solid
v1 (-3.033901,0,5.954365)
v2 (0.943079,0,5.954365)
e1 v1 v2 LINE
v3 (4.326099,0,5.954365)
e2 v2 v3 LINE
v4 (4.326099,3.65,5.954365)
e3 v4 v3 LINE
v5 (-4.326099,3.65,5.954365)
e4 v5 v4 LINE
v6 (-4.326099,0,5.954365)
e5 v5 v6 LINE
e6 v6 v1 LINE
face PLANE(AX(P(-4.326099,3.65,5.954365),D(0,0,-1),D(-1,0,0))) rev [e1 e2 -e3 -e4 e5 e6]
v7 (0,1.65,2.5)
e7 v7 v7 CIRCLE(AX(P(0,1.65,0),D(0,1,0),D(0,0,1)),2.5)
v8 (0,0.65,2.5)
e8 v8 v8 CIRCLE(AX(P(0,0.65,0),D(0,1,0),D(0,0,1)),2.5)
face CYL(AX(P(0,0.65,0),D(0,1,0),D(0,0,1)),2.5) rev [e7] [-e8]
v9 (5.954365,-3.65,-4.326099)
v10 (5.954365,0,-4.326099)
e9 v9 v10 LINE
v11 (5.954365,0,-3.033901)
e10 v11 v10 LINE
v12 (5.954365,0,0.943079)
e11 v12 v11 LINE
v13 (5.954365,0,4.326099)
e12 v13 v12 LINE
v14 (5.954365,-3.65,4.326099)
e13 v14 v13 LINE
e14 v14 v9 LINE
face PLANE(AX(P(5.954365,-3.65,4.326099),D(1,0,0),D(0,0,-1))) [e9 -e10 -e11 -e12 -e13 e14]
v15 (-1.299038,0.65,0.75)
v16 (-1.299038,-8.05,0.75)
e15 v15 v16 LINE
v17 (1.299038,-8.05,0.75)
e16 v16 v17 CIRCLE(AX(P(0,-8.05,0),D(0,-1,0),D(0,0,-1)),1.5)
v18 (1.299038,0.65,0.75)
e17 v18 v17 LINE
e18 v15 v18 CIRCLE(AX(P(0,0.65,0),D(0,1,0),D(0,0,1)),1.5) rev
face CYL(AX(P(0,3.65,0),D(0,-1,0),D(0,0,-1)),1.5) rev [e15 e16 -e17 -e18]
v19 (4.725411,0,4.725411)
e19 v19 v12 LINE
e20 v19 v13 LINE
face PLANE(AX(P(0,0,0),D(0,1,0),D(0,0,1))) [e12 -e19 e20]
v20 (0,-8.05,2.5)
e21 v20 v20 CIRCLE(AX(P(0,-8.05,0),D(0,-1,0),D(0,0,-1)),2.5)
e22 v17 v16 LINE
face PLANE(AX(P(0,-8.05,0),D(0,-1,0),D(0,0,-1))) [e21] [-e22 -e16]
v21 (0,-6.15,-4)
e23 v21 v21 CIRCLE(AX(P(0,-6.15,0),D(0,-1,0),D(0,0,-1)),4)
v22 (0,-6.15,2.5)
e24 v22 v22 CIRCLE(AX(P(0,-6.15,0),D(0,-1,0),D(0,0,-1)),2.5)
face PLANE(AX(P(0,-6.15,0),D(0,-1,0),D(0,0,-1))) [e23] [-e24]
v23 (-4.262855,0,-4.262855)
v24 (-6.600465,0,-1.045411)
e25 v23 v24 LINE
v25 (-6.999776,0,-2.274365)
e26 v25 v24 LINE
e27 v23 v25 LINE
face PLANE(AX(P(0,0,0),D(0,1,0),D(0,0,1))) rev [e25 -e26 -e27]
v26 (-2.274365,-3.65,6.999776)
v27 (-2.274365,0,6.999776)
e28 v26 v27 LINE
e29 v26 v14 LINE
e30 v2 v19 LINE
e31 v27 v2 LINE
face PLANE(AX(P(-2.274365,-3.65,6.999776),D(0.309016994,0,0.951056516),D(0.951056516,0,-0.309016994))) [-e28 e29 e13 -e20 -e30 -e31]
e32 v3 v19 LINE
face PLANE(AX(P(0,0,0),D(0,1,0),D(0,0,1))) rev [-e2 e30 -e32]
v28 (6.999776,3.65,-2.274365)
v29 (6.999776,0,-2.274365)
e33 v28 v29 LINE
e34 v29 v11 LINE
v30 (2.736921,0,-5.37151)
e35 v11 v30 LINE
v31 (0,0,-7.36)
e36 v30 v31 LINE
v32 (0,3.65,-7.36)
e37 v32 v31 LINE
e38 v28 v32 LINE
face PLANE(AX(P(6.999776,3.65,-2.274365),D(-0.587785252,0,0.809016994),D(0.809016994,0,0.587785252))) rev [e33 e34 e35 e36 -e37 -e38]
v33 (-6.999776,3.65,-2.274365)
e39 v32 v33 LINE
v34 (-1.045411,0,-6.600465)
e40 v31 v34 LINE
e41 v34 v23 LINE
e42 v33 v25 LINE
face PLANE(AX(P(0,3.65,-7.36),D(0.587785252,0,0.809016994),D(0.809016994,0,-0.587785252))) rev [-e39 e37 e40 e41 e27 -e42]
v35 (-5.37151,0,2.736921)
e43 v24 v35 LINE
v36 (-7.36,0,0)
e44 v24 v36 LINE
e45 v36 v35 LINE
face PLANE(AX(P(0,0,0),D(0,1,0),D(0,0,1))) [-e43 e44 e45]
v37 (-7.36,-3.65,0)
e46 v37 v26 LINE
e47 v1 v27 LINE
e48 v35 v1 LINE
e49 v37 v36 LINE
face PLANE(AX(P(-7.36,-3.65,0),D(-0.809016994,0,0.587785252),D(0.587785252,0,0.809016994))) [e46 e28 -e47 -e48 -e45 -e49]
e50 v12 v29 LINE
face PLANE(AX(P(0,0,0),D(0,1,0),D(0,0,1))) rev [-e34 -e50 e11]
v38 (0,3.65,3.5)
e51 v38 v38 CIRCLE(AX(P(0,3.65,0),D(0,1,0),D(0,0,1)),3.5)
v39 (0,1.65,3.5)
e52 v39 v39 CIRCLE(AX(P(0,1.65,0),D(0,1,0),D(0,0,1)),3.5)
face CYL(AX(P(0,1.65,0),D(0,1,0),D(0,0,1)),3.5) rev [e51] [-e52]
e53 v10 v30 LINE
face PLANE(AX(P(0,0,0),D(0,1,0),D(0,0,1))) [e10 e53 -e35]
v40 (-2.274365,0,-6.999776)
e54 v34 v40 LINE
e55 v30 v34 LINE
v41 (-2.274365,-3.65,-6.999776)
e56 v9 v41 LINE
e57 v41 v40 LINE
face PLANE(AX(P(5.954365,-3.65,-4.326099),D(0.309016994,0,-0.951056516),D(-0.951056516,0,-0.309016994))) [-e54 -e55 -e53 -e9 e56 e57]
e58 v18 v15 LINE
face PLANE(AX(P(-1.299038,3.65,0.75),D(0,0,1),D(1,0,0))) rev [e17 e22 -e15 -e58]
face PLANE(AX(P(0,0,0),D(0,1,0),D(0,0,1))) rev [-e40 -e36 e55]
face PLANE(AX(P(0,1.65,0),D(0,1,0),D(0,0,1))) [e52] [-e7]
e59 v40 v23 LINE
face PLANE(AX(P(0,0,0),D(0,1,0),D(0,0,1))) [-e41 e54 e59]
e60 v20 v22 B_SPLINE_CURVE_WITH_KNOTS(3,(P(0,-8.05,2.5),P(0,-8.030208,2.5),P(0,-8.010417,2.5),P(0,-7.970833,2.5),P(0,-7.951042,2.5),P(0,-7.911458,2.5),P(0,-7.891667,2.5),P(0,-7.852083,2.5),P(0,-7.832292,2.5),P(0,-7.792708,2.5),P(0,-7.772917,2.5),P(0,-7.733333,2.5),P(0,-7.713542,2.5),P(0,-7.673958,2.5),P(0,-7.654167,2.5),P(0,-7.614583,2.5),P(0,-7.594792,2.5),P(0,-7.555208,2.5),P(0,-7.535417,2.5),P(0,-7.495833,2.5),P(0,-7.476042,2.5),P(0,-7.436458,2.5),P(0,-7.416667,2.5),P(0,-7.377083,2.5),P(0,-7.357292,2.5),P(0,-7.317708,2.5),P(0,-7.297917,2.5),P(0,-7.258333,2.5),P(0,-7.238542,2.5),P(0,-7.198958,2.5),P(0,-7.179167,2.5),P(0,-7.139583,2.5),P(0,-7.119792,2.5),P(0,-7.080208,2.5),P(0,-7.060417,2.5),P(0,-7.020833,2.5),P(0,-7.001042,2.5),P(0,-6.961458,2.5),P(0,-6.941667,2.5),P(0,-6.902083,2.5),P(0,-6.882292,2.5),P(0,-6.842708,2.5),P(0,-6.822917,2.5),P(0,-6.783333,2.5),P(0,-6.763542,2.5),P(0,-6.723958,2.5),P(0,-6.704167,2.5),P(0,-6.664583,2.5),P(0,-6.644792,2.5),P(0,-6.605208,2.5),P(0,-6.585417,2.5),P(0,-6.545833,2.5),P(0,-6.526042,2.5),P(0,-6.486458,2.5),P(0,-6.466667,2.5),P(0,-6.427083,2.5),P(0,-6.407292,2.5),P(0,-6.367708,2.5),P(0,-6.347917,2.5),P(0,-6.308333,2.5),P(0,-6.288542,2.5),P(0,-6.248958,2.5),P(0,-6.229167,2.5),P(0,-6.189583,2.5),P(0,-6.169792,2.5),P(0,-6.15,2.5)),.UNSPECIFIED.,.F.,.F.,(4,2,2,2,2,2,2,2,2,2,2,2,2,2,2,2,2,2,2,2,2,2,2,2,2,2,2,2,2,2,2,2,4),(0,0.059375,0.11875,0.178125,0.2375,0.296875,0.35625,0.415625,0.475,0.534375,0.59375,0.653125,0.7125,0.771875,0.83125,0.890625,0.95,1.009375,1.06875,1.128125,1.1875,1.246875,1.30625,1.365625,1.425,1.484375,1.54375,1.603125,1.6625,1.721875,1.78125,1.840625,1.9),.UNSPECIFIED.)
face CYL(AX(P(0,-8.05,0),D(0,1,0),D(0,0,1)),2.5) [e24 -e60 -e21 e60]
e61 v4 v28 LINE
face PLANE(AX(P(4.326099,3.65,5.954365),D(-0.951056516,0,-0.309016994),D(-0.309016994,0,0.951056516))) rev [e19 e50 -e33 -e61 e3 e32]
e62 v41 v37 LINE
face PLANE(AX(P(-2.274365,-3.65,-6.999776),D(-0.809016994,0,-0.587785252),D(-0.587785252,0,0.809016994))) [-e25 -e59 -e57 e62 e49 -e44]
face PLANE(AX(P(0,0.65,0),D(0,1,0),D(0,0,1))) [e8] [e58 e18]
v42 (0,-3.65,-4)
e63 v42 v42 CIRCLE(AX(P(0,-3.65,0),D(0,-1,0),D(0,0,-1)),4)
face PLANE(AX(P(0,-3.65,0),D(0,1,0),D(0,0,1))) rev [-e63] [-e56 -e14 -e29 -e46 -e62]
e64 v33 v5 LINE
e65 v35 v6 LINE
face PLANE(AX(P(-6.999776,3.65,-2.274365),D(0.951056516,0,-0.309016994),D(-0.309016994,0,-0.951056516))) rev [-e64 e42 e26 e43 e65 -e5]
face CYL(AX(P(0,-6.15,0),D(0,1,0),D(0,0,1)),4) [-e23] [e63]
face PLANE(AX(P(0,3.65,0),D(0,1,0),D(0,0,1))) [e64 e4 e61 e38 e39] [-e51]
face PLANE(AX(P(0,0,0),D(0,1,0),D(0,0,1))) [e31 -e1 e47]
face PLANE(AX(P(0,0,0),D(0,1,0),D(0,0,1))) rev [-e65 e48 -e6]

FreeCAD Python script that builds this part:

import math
import FreeCAD as App
import Part
import Sketcher
Q = App.Units.Quantity

doc = App.newDocument("Part")
body = doc.addObject("PartDesign::Body", "Body")

# Sketch on XZ plane
sketch1 = body.newObject("Sketcher::SketchObject", "Sketch")
sketch1.AttachmentSupport = (doc.getObject("XZ_Plane"), [""])
sketch1.MapMode = "FlatFace"
sketch1.addGeometry([
    Part.LineSegment(App.Vector(0, -7.36, 0), App.Vector(-6.999776, -2.274365, 0)),  # 0
    Part.LineSegment(App.Vector(-6.999776, -2.274365, 0), App.Vector(-4.326099, 5.954365, 0)),  # 1
    Part.LineSegment(App.Vector(-4.326099, 5.954365, 0), App.Vector(4.326099, 5.954365, 0)),  # 2
    Part.LineSegment(App.Vector(4.326099, 5.954365, 0), App.Vector(6.999776, -2.274365, 0)),  # 3
    Part.LineSegment(App.Vector(6.999776, -2.274365, 0), App.Vector(0, -7.36, 0)),  # 4
], False)
sketch1.addConstraint([
    Sketcher.Constraint("Coincident", 0, 2, 1, 1),
    Sketcher.Constraint("Coincident", 1, 2, 2, 1),
    Sketcher.Constraint("Coincident", 2, 2, 3, 1),
    Sketcher.Constraint("Coincident", 3, 2, 4, 1),
    Sketcher.Constraint("Coincident", 4, 2, 0, 1),
    Sketcher.Constraint("Horizontal", 2),
    Sketcher.Constraint("Symmetric", 0, 2, 3, 2, -2),
    Sketcher.Constraint("PointOnObject", 4, 2, -2),
    Sketcher.Constraint("Equal", 0, 1),
    Sketcher.Constraint("Equal", 1, 3),
    Sketcher.Constraint("Angle", 0, Q("144 deg")),
    Sketcher.Constraint("Angle", 1, Q("72 deg")),
    Sketcher.Constraint("DistanceY", 4, 2, -1, 1, 7.36),
    Sketcher.Constraint("DistanceX", 2, 1, 2, 2, 8.652199),
])
pad1 = body.newObject("PartDesign::Pad", "Pad")
pad1.Profile = sketch1
pad1.Length = 3.65
pad1.Reversed = True

# Sketch on XZ plane
sketch2 = body.newObject("Sketcher::SketchObject", "Sketch001")
sketch2.AttachmentSupport = (doc.getObject("XZ_Plane"), [""])
sketch2.MapMode = "FlatFace"
sketch2.addGeometry([
    Part.LineSegment(App.Vector(-2.274365, 6.999776, 0), App.Vector(5.954365, 4.326099, 0)),  # 0
    Part.LineSegment(App.Vector(5.954365, 4.326099, 0), App.Vector(5.954365, -4.326099, 0)),  # 1
    Part.LineSegment(App.Vector(5.954365, -4.326099, 0), App.Vector(-2.274365, -6.999776, 0)),  # 2
    Part.LineSegment(App.Vector(-2.274365, -6.999776, 0), App.Vector(-7.36, 0, 0)),  # 3
    Part.LineSegment(App.Vector(-7.36, 0, 0), App.Vector(-2.274365, 6.999776, 0)),  # 4
], False)
sketch2.addConstraint([
    Sketcher.Constraint("Coincident", 0, 2, 1, 1),
    Sketcher.Constraint("Coincident", 1, 2, 2, 1),
    Sketcher.Constraint("Coincident", 2, 2, 3, 1),
    Sketcher.Constraint("Coincident", 3, 2, 4, 1),
    Sketcher.Constraint("Coincident", 4, 2, 0, 1),
    Sketcher.Constraint("Vertical", 1),
    Sketcher.Constraint("Symmetric", 2, 2, 4, 2, -1),
    Sketcher.Constraint("PointOnObject", 3, 2, -1),
    Sketcher.Constraint("Equal", 0, 2),
    Sketcher.Constraint("Equal", 2, 3),
    Sketcher.Constraint("Angle", 0, Q("-18 deg")),
    Sketcher.Constraint("Angle", 3, Q("126 deg")),
    Sketcher.Constraint("DistanceX", 3, 2, -1, 1, 7.36),
    Sketcher.Constraint("DistanceY", 1, 2, 1, 1, 8.652199),
])
pad2 = body.newObject("PartDesign::Pad", "Pad001")
pad2.Profile = sketch2
pad2.Length = 3.65

# Sketch on XZ plane
sketch3 = body.newObject("Sketcher::SketchObject", "Sketch002")
sketch3.AttachmentSupport = (doc.getObject("XZ_Plane"), [""])
sketch3.MapMode = "FlatFace"
sketch3.AttachmentOffset = App.Placement(App.Vector(0, 0, -3.65), App.Rotation())
sketch3.addGeometry(Part.Circle(App.Vector(0, 0, 0), App.Vector(0, 0, 1), 3.5), False)
sketch3.addConstraint([
    Sketcher.Constraint("Coincident", 0, 3, -1, 1),
    Sketcher.Constraint("Diameter", 0, 7.0),
])
pocket1 = body.newObject("PartDesign::Pocket", "Pocket")
pocket1.Profile = sketch3
pocket1.Length = 2
pocket1.Reversed = True

# Sketch on XZ plane
sketch4 = body.newObject("Sketcher::SketchObject", "Sketch003")
sketch4.AttachmentSupport = (doc.getObject("XZ_Plane"), [""])
sketch4.MapMode = "FlatFace"
sketch4.AttachmentOffset = App.Placement(App.Vector(0, 0, 3.65), App.Rotation())
sketch4.addGeometry(Part.Circle(App.Vector(0, 0, 0), App.Vector(0, 0, 1), 4), False)
sketch4.addConstraint([
    Sketcher.Constraint("Coincident", 0, 3, -1, 1),
    Sketcher.Constraint("Diameter", 0, 8.0),
])
pad3 = body.newObject("PartDesign::Pad", "Pad002")
pad3.Profile = sketch4
pad3.Length = 2.5

# Sketch on XZ plane
sketch5 = body.newObject("Sketcher::SketchObject", "Sketch004")
sketch5.AttachmentSupport = (doc.getObject("XZ_Plane"), [""])
sketch5.MapMode = "FlatFace"
sketch5.AttachmentOffset = App.Placement(App.Vector(0, 0, 6.15), App.Rotation())
sketch5.addGeometry([
    Part.LineSegment(App.Vector(1.299038, 0.75, 0), App.Vector(-1.299038, 0.75, 0)),
    Part.ArcOfCircle(Part.Circle(App.Vector(0, 0, 0), App.Vector(0, 0, 1), 1.5), math.radians(150), math.radians(390)),
], False)
sketch5.addConstraint([
    Sketcher.Constraint("Coincident", 0, 1, 1, 2),
    Sketcher.Constraint("Coincident", 1, 1, 0, 2),
    Sketcher.Constraint("Horizontal", 0),
    Sketcher.Constraint("Coincident", 1, 3, -1, 1),
    Sketcher.Constraint("Radius", 1, 1.5),
    Sketcher.Constraint("DistanceY", -1, 1, 0, 1, 0.75),
])
pocket2 = body.newObject("PartDesign::Pocket", "Pocket001")
pocket2.Profile = sketch5
pocket2.Type = "ThroughAll"

# Sketch on XZ plane
sketch6 = body.newObject("Sketcher::SketchObject", "Sketch005")
sketch6.AttachmentSupport = (doc.getObject("XZ_Plane"), [""])
sketch6.MapMode = "FlatFace"
sketch6.AttachmentOffset = App.Placement(App.Vector(0, 0, -1.65), App.Rotation())
sketch6.addGeometry(Part.Circle(App.Vector(0, 0, 0), App.Vector(0, 0, 1), 2.5), False)
sketch6.addConstraint([
    Sketcher.Constraint("Coincident", 0, 3, -1, 1),
    Sketcher.Constraint("Diameter", 0, 5.0),
])
pocket3 = body.newObject("PartDesign::Pocket", "Pocket002")
pocket3.Profile = sketch6
pocket3.Length = 1
pocket3.Reversed = True

# Sketch on XZ plane
sketch7 = body.newObject("Sketcher::SketchObject", "Sketch006")
sketch7.AttachmentSupport = (doc.getObject("XZ_Plane"), [""])
sketch7.MapMode = "FlatFace"
sketch7.AttachmentOffset = App.Placement(App.Vector(0, 0, 6.15), App.Rotation())
sketch7.addGeometry([
    Part.Circle(App.Vector(0, 0, 0), App.Vector(0, 0, 1), 2.5),
    Part.LineSegment(App.Vector(-1.299038, 0.75, 0), App.Vector(1.299038, 0.75, 0)),
    Part.ArcOfCircle(Part.Circle(App.Vector(0, 0, 0), App.Vector(0, 0, 1), 1.5), math.radians(150), math.radians(390)),
], False)
sketch7.addConstraint([
    Sketcher.Constraint("Coincident", 1, 1, 2, 1),
    Sketcher.Constraint("Coincident", 2, 2, 1, 2),
    Sketcher.Constraint("Horizontal", 1),
    Sketcher.Constraint("Coincident", 0, 3, -1, 1),
    Sketcher.Constraint("Coincident", 2, 3, -1, 1),
    Sketcher.Constraint("Diameter", 0, 5.0),
    Sketcher.Constraint("Radius", 2, 1.5),
    Sketcher.Constraint("DistanceY", -1, 1, 1, 1, 0.75),
])
pad4 = body.newObject("PartDesign::Pad", "Pad003")
pad4.Profile = sketch7
pad4.Length = 1.9

doc.recompute()
